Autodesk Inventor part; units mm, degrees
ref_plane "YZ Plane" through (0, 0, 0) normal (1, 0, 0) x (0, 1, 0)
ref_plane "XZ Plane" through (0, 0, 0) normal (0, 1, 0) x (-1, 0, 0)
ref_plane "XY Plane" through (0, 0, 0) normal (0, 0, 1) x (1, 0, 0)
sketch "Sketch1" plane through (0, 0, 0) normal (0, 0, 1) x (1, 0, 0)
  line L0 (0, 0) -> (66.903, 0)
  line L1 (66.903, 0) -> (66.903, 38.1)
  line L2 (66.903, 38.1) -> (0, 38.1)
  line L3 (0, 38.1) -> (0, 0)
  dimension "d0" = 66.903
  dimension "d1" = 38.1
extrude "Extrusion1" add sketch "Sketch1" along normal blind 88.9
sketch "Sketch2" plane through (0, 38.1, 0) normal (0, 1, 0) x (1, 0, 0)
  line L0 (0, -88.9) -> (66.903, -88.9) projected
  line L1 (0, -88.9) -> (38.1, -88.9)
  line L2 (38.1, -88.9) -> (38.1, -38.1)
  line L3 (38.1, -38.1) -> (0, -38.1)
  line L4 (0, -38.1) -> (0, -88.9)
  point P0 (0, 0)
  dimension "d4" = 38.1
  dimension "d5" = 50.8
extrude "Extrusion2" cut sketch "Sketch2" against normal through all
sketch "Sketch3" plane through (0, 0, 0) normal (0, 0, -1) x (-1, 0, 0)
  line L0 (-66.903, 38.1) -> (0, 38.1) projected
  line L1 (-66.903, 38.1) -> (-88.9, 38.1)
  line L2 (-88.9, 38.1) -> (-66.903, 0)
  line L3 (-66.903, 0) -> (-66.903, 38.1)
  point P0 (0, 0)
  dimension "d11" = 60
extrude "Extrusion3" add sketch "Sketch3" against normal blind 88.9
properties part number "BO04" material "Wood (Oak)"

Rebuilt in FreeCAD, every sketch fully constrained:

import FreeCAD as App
import Part
import Sketcher
Q = App.Units.Quantity


def add_polygon(sketch, points):
    """Adds a closed chain of lines whose ends are joined by coincident constraints."""
    first, n = sketch.GeometryCount, len(points)
    for a, b in zip(points, points[1:] + points[:1]):
        sketch.addGeometry(Part.LineSegment(App.Vector(*a, 0), App.Vector(*b, 0)), False)
    for i in range(n):
        sketch.addConstraint(Sketcher.Constraint("Coincident", first + i, 2, first + (i + 1) % n, 1))

doc = App.newDocument("Part")
body = doc.addObject("PartDesign::Body", "Body")

# Sketch on XY plane
sketch1 = body.newObject("Sketcher::SketchObject", "Sketch")
sketch1.AttachmentSupport = (doc.getObject("XY_Plane"), [""])
sketch1.MapMode = "FlatFace"
add_polygon(sketch1, [(0, 38), (0, 0), (67, 0), (67, 38)])  # lines 0-3
sketch1.addConstraint([
    Sketcher.Constraint("Vertical", 0),
    Sketcher.Constraint("Horizontal", 1),
    Sketcher.Constraint("Vertical", 2),
    Sketcher.Constraint("Horizontal", 3),
    Sketcher.Constraint("Coincident", 0, 2, -1, 1),
    Sketcher.Constraint("DistanceY", 0, 2, 0, 1, Q("1.5 in")),
    Sketcher.Constraint("DistanceX", 1, 1, 1, 2, Q("66.903 mm")),
])
pad1 = body.newObject("PartDesign::Pad", "Pad")
pad1.Profile = sketch1
pad1.Length = Q("3.5 in")

# Sketch on XZ plane
sketch2 = body.newObject("Sketcher::SketchObject", "Sketch001")
sketch2.AttachmentSupport = (doc.getObject("XZ_Plane"), [""])
sketch2.MapMode = "FlatFace"
sketch2.AttachmentOffset = App.Placement(App.Vector(0, 0, -1.5 * 25.4), App.Rotation())
add_polygon(sketch2, [(0, 38), (0, 89), (38, 89), (38, 38)])  # lines 0-3
sketch2.addConstraint([
    Sketcher.Constraint("Vertical", 0),
    Sketcher.Constraint("Horizontal", 1),
    Sketcher.Constraint("Vertical", 2),
    Sketcher.Constraint("Horizontal", 3),
    Sketcher.Constraint("PointOnObject", 0, 2, -2),
    Sketcher.Constraint("DistanceY", 0, 1, 0, 2, Q("2 in")),
    Sketcher.Constraint("DistanceX", 1, 1, 1, 2, Q("1.5 in")),
    Sketcher.Constraint("DistanceY", -1, 1, 2, 2, Q("1.5 in")),
])
pocket1 = body.newObject("PartDesign::Pocket", "Pocket")
pocket1.Profile = sketch2
pocket1.Type = "ThroughAll"
pocket1.Reversed = True

# Sketch on XY plane
sketch3 = body.newObject("Sketcher::SketchObject", "Sketch002")
sketch3.AttachmentSupport = (doc.getObject("XY_Plane"), [""])
sketch3.MapMode = "FlatFace"
add_polygon(sketch3, [(67, 0), (67, 38), (89, 38)])  # lines 0-2
sketch3.addConstraint([
    Sketcher.Constraint("Vertical", 0),
    Sketcher.Constraint("Horizontal", 1),
    Sketcher.Constraint("PointOnObject", 2, 2, -1),
    Sketcher.Constraint("DistanceY", 0, 1, 0, 2, Q("1.5 in")),
    Sketcher.Constraint("Angle", 2, Q("-120 deg")),
    Sketcher.Constraint("DistanceX", -1, 1, 1, 2, Q("3.5 in")),
])
pad2 = body.newObject("PartDesign::Pad", "Pad001")
pad2.Profile = sketch3
pad2.Length = Q("3.5 in")

doc.recompute()
